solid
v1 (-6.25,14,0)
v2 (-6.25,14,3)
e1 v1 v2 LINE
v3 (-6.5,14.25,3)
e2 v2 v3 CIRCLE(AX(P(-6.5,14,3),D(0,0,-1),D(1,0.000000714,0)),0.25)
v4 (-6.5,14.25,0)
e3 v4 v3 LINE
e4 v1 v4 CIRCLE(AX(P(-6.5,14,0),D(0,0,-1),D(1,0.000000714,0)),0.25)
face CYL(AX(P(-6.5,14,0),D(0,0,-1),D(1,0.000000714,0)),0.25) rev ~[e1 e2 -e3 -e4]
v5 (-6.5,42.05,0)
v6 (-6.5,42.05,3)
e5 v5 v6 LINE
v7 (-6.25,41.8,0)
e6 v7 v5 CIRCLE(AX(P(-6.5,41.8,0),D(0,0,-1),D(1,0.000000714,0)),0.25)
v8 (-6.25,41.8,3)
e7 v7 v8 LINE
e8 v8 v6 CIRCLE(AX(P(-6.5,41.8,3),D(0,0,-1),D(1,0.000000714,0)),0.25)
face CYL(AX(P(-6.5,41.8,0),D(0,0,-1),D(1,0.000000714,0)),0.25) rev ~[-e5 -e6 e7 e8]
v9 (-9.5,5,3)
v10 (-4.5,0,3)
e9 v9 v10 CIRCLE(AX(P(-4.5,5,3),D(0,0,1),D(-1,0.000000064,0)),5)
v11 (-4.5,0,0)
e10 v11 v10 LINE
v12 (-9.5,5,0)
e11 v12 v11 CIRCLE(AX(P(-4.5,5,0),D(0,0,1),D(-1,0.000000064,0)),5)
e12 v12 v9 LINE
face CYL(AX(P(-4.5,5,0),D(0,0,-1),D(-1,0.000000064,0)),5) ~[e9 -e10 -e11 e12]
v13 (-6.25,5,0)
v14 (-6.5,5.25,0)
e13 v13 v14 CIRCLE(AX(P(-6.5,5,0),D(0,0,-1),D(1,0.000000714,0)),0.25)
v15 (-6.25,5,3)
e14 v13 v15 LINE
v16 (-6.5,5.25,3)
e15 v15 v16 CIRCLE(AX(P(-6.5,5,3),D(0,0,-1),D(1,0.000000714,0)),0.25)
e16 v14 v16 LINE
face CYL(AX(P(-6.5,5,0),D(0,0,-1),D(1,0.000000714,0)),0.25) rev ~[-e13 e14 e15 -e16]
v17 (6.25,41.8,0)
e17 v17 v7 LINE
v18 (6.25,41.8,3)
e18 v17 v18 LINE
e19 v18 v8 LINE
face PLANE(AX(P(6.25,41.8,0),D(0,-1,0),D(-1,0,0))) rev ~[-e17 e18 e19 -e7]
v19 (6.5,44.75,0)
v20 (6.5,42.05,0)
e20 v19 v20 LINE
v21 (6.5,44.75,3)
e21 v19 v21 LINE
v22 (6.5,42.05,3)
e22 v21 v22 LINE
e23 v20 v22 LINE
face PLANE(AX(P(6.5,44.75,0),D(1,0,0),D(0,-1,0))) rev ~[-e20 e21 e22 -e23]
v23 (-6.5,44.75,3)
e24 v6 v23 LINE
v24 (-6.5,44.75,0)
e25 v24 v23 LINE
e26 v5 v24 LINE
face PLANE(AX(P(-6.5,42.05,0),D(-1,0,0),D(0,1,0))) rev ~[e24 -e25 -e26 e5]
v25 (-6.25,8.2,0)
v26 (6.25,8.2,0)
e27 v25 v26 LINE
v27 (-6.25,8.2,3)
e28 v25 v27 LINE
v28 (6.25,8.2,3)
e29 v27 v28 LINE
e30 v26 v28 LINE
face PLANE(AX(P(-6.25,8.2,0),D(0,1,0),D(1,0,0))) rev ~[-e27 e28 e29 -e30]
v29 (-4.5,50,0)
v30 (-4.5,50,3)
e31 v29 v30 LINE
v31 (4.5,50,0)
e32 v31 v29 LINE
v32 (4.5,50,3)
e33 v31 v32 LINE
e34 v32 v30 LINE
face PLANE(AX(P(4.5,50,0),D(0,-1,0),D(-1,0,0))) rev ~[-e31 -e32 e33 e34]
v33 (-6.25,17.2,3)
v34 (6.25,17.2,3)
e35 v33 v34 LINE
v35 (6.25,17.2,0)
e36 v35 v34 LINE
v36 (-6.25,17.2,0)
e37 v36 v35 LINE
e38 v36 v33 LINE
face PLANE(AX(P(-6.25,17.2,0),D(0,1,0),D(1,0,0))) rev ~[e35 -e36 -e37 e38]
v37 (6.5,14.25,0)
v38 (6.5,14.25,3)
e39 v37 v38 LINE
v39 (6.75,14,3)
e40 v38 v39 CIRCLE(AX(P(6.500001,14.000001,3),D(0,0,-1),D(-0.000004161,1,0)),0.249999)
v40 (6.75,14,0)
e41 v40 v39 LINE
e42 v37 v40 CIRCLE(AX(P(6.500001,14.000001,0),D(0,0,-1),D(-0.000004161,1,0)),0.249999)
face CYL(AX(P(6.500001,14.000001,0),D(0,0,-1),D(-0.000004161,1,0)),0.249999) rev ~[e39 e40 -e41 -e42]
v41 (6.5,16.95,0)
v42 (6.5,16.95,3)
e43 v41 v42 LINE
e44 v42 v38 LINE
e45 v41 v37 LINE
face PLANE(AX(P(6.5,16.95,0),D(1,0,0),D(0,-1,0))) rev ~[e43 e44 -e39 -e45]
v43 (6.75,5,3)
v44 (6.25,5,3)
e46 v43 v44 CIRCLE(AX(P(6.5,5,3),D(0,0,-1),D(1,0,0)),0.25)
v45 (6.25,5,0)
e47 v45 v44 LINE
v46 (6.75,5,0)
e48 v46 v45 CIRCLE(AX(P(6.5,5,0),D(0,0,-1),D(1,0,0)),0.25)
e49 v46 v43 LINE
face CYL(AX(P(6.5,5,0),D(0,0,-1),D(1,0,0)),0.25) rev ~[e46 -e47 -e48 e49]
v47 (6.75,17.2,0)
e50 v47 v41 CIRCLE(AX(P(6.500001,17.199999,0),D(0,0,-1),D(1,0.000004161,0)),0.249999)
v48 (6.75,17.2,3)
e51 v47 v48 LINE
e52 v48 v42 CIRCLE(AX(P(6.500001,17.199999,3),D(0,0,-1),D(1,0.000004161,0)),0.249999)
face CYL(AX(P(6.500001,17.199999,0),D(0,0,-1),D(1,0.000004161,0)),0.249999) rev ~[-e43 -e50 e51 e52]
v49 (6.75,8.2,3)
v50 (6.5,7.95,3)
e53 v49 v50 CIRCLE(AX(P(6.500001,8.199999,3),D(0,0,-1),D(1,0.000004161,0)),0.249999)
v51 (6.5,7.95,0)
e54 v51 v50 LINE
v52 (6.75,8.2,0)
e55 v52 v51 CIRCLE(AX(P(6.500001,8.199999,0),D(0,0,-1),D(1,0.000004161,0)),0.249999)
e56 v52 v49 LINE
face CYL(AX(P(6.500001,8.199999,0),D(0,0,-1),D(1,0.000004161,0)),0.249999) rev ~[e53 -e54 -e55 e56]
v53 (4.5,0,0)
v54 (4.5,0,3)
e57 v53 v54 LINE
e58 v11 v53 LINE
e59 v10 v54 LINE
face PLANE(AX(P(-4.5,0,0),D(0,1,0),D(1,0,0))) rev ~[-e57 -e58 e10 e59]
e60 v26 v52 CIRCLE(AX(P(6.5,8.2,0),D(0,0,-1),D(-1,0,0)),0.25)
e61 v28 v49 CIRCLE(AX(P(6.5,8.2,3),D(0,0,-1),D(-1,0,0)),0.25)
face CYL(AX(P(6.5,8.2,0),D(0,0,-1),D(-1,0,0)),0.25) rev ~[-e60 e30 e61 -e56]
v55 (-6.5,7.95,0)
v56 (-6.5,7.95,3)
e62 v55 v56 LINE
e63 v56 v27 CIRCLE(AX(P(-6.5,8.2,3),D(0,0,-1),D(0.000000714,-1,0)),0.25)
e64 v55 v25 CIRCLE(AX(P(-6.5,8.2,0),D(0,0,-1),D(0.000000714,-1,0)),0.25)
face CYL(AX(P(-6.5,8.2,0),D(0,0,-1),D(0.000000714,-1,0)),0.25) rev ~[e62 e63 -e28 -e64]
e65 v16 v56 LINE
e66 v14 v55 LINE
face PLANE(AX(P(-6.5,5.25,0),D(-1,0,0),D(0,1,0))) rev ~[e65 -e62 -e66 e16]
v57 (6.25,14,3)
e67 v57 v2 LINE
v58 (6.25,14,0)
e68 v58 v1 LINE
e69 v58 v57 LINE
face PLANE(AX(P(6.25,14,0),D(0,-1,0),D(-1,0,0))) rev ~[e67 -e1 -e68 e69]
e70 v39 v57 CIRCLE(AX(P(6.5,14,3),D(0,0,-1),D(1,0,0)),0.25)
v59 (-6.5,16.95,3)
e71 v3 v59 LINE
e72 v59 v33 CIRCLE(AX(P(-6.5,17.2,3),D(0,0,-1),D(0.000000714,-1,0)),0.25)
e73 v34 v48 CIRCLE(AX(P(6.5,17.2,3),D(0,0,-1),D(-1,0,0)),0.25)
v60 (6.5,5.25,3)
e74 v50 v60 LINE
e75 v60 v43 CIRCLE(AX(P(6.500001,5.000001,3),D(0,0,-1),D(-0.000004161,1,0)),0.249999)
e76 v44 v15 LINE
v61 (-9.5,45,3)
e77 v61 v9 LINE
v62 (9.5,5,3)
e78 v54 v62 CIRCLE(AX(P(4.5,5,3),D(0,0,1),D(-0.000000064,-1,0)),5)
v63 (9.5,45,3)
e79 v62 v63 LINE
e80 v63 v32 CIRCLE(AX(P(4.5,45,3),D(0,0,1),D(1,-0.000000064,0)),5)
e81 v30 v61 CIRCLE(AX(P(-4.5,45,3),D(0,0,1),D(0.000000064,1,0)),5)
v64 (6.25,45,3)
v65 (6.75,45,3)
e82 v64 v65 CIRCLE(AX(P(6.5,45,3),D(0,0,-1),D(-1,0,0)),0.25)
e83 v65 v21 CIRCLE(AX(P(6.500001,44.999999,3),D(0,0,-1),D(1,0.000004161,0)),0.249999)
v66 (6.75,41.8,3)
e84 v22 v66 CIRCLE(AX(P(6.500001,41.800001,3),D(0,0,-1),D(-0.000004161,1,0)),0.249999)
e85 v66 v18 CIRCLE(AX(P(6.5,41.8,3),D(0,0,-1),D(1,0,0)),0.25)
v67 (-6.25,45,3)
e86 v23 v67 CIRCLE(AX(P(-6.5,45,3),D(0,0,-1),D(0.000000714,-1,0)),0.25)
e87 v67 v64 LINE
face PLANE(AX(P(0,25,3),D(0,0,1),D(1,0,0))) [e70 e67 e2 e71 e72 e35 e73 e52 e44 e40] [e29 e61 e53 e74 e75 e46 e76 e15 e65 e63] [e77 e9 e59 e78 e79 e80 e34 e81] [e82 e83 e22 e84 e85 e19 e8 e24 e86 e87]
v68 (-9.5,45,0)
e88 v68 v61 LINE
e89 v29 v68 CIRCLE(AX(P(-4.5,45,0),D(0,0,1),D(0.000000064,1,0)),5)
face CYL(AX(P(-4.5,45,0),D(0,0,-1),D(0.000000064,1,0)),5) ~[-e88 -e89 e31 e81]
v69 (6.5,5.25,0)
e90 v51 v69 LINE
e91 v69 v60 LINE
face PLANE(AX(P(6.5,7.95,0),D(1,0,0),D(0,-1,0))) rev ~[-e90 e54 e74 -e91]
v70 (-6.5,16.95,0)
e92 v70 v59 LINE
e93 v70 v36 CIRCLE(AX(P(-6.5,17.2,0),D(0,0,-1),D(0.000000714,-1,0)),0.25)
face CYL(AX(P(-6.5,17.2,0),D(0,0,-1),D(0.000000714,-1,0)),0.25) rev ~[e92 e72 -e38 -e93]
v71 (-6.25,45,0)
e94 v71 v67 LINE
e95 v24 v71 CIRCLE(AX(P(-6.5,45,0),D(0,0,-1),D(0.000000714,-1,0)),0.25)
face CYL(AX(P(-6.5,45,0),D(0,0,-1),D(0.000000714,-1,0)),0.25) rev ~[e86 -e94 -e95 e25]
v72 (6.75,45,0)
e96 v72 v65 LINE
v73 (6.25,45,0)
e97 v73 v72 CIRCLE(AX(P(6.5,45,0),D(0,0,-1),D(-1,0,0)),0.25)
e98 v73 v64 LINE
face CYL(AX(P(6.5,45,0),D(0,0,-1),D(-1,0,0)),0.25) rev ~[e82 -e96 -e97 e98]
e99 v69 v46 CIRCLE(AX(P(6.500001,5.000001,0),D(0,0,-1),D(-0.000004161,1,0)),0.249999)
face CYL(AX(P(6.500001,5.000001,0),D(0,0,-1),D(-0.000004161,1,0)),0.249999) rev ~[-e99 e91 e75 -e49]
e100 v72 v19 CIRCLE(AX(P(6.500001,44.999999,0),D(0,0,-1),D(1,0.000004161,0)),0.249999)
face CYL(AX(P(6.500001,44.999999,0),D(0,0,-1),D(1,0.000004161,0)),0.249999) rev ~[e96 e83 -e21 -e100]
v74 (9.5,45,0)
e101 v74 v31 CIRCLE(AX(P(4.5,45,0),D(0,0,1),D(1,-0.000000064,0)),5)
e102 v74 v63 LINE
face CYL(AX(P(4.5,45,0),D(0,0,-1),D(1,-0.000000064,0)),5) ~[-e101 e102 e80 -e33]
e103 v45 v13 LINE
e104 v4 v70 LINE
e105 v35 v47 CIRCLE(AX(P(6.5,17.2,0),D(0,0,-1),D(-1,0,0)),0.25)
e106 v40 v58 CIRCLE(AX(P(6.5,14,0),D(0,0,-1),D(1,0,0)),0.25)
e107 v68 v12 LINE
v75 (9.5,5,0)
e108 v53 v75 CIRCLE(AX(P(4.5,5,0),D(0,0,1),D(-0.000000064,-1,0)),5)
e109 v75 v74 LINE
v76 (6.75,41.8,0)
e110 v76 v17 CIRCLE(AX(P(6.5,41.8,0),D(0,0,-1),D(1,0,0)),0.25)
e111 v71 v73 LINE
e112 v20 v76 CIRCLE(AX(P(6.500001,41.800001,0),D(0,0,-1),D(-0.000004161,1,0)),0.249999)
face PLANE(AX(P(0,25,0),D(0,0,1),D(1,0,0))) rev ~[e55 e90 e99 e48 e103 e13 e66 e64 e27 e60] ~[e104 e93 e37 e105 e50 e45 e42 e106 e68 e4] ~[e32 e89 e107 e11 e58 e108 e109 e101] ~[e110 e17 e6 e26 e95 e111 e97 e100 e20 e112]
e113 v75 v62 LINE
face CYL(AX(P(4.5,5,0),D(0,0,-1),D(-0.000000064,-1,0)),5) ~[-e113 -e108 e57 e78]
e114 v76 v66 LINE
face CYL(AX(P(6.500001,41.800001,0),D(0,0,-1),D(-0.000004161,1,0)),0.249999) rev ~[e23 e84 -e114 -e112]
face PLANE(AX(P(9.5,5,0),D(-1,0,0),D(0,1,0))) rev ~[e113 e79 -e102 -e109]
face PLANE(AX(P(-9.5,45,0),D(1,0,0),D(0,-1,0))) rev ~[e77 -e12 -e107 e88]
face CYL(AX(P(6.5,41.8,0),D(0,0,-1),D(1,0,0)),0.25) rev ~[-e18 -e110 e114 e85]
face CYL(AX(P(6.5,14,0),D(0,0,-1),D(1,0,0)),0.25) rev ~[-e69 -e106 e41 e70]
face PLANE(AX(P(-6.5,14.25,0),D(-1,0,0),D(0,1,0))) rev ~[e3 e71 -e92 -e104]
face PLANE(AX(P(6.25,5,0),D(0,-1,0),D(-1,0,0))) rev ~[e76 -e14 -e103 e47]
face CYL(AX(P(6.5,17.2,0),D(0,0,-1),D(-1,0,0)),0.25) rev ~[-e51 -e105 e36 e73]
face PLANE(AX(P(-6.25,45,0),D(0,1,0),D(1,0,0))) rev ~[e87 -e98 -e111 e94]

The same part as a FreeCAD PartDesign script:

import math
import FreeCAD as App
import Part
import Sketcher

V = App.Vector

doc = App.newDocument("Part")
body = doc.addObject("PartDesign::Body", "Body")

# Sketch on XY plane
sketch1 = body.newObject("Sketcher::SketchObject", "Sketch")
sketch1.AttachmentSupport = (doc.getObject("XY_Plane"), [""])
sketch1.MapMode = "FlatFace"
sketch1.addGeometry(Part.LineSegment(V(4.5, 50, 0), V(-4.5, 50, 0)), False)
sketch1.addGeometry(Part.ArcOfCircle(Part.Circle(V(-4.5, 45, 0), V(0, 0, 1), 5), math.radians(90), math.radians(180)), False)
sketch1.addGeometry(Part.LineSegment(V(-9.5, 45, 0), V(-9.5, 5, 0)), False)
sketch1.addGeometry(Part.ArcOfCircle(Part.Circle(V(-4.5, 5, 0), V(0, 0, 1), 5), math.radians(180), math.radians(270)), False)
sketch1.addGeometry(Part.LineSegment(V(-4.5, 0, 0), V(4.5, 0, 0)), False)
sketch1.addGeometry(Part.ArcOfCircle(Part.Circle(V(4.5, 5, 0), V(0, 0, 1), 5), math.radians(-90), math.radians(0)), False)
sketch1.addGeometry(Part.LineSegment(V(9.5, 5, 0), V(9.5, 45, 0)), False)
sketch1.addGeometry(Part.ArcOfCircle(Part.Circle(V(4.5, 45, 0), V(0, 0, 1), 5), math.radians(0), math.radians(90)), False)
sketch1.addGeometry(Part.LineSegment(V(-6.5, 5.25, 0), V(-6.5, 7.95, 0)), False)
sketch1.addGeometry(Part.ArcOfCircle(Part.Circle(V(-6.5, 8.2, 0), V(0, 0, 1), 0.25), math.radians(0), math.radians(270)), False)
sketch1.addGeometry(Part.LineSegment(V(-6.25, 8.2, 0), V(6.25, 8.2, 0)), False)
sketch1.addGeometry(Part.ArcOfCircle(Part.Circle(V(6.5, 8.2, 0), V(0, 0, 1), 0.25), math.radians(0), math.radians(180)), False)
sketch1.addGeometry(Part.ArcOfCircle(Part.Circle(V(6.5, 8.2, 0), V(0, 0, 1), 0.25), math.radians(-90), math.radians(0)), False)
sketch1.addGeometry(Part.LineSegment(V(6.5, 7.95, 0), V(6.5, 5.25, 0)), False)
sketch1.addGeometry(Part.ArcOfCircle(Part.Circle(V(6.5, 5, 0), V(0, 0, 1), 0.25), math.radians(0), math.radians(90)), False)
sketch1.addGeometry(Part.ArcOfCircle(Part.Circle(V(6.5, 5, 0), V(0, 0, 1), 0.25), math.radians(180), math.radians(360)), False)
sketch1.addGeometry(Part.LineSegment(V(6.25, 5, 0), V(-6.25, 5, 0)), False)
sketch1.addGeometry(Part.ArcOfCircle(Part.Circle(V(-6.5, 5, 0), V(0, 0, 1), 0.25), math.radians(90), math.radians(360)), False)
sketch1.addGeometry(Part.LineSegment(V(-6.5, 14.25, 0), V(-6.5, 16.95, 0)), False)
sketch1.addGeometry(Part.ArcOfCircle(Part.Circle(V(-6.5, 17.2, 0), V(0, 0, 1), 0.25), math.radians(0), math.radians(270)), False)
sketch1.addGeometry(Part.LineSegment(V(-6.25, 17.2, 0), V(6.25, 17.2, 0)), False)
sketch1.addGeometry(Part.ArcOfCircle(Part.Circle(V(6.5, 17.2, 0), V(0, 0, 1), 0.25), math.radians(0), math.radians(180)), False)
sketch1.addGeometry(Part.ArcOfCircle(Part.Circle(V(6.5, 17.2, 0), V(0, 0, 1), 0.25), math.radians(-90), math.radians(0)), False)
sketch1.addGeometry(Part.LineSegment(V(6.5, 16.95, 0), V(6.5, 14.25, 0)), False)
sketch1.addGeometry(Part.ArcOfCircle(Part.Circle(V(6.5, 14, 0), V(0, 0, 1), 0.25), math.radians(0), math.radians(90)), False)
sketch1.addGeometry(Part.ArcOfCircle(Part.Circle(V(6.5, 14, 0), V(0, 0, 1), 0.25), math.radians(180), math.radians(360)), False)
sketch1.addGeometry(Part.LineSegment(V(6.25, 14, 0), V(-6.25, 14, 0)), False)
sketch1.addGeometry(Part.ArcOfCircle(Part.Circle(V(-6.5, 14, 0), V(0, 0, 1), 0.25), math.radians(90), math.radians(360)), False)
sketch1.addGeometry(Part.LineSegment(V(-6.5, 42.05, 0), V(-6.5, 44.75, 0)), False)
sketch1.addGeometry(Part.ArcOfCircle(Part.Circle(V(-6.5, 45, 0), V(0, 0, 1), 0.25), math.radians(0), math.radians(270)), False)
sketch1.addGeometry(Part.LineSegment(V(-6.25, 45, 0), V(6.25, 45, 0)), False)
sketch1.addGeometry(Part.ArcOfCircle(Part.Circle(V(6.5, 45, 0), V(0, 0, 1), 0.25), math.radians(0), math.radians(180)), False)
sketch1.addGeometry(Part.ArcOfCircle(Part.Circle(V(6.5, 45, 0), V(0, 0, 1), 0.25), math.radians(-90), math.radians(0)), False)
sketch1.addGeometry(Part.LineSegment(V(6.5, 44.75, 0), V(6.5, 42.05, 0)), False)
sketch1.addGeometry(Part.ArcOfCircle(Part.Circle(V(6.5, 41.8, 0), V(0, 0, 1), 0.25), math.radians(0), math.radians(90)), False)
sketch1.addGeometry(Part.ArcOfCircle(Part.Circle(V(6.5, 41.8, 0), V(0, 0, 1), 0.25), math.radians(180), math.radians(360)), False)
sketch1.addGeometry(Part.LineSegment(V(6.25, 41.8, 0), V(-6.25, 41.8, 0)), False)
sketch1.addGeometry(Part.ArcOfCircle(Part.Circle(V(-6.5, 41.8, 0), V(0, 0, 1), 0.25), math.radians(90), math.radians(360)), False)
sketch1.addConstraint(Sketcher.Constraint("Tangent", 0, 2, 1, 1))
sketch1.addConstraint(Sketcher.Constraint("Tangent", 1, 2, 2, 1))
sketch1.addConstraint(Sketcher.Constraint("Tangent", 2, 2, 3, 1))
sketch1.addConstraint(Sketcher.Constraint("Tangent", 3, 2, 4, 1))
sketch1.addConstraint(Sketcher.Constraint("Tangent", 4, 2, 5, 1))
sketch1.addConstraint(Sketcher.Constraint("Tangent", 5, 2, 6, 1))
sketch1.addConstraint(Sketcher.Constraint("Tangent", 6, 2, 7, 1))
sketch1.addConstraint(Sketcher.Constraint("Tangent", 7, 2, 0, 1))
sketch1.addConstraint(Sketcher.Constraint("Coincident", 8, 2, 9, 2))
sketch1.addConstraint(Sketcher.Constraint("Coincident", 9, 1, 10, 1))
sketch1.addConstraint(Sketcher.Constraint("Coincident", 10, 2, 11, 2))
sketch1.addConstraint(Sketcher.Constraint("Coincident", 11, 1, 12, 2))
sketch1.addConstraint(Sketcher.Constraint("Coincident", 12, 1, 13, 1))
sketch1.addConstraint(Sketcher.Constraint("Coincident", 13, 2, 14, 2))
sketch1.addConstraint(Sketcher.Constraint("Coincident", 14, 1, 15, 2))
sketch1.addConstraint(Sketcher.Constraint("Coincident", 15, 1, 16, 1))
sketch1.addConstraint(Sketcher.Constraint("Coincident", 16, 2, 17, 2))
sketch1.addConstraint(Sketcher.Constraint("Coincident", 17, 1, 8, 1))
sketch1.addConstraint(Sketcher.Constraint("Coincident", 18, 2, 19, 2))
sketch1.addConstraint(Sketcher.Constraint("Coincident", 19, 1, 20, 1))
sketch1.addConstraint(Sketcher.Constraint("Coincident", 20, 2, 21, 2))
sketch1.addConstraint(Sketcher.Constraint("Coincident", 21, 1, 22, 2))
sketch1.addConstraint(Sketcher.Constraint("Coincident", 22, 1, 23, 1))
sketch1.addConstraint(Sketcher.Constraint("Coincident", 23, 2, 24, 2))
sketch1.addConstraint(Sketcher.Constraint("Coincident", 24, 1, 25, 2))
sketch1.addConstraint(Sketcher.Constraint("Coincident", 25, 1, 26, 1))
sketch1.addConstraint(Sketcher.Constraint("Coincident", 26, 2, 27, 2))
sketch1.addConstraint(Sketcher.Constraint("Coincident", 27, 1, 18, 1))
sketch1.addConstraint(Sketcher.Constraint("Coincident", 28, 2, 29, 2))
sketch1.addConstraint(Sketcher.Constraint("Coincident", 29, 1, 30, 1))
sketch1.addConstraint(Sketcher.Constraint("Coincident", 30, 2, 31, 2))
sketch1.addConstraint(Sketcher.Constraint("Coincident", 31, 1, 32, 2))
sketch1.addConstraint(Sketcher.Constraint("Coincident", 32, 1, 33, 1))
sketch1.addConstraint(Sketcher.Constraint("Coincident", 33, 2, 34, 2))
sketch1.addConstraint(Sketcher.Constraint("Coincident", 34, 1, 35, 2))
sketch1.addConstraint(Sketcher.Constraint("Coincident", 35, 1, 36, 1))
sketch1.addConstraint(Sketcher.Constraint("Coincident", 36, 2, 37, 2))
sketch1.addConstraint(Sketcher.Constraint("Coincident", 37, 1, 28, 1))
sketch1.addConstraint(Sketcher.Constraint("Horizontal", 0))
sketch1.addConstraint(Sketcher.Constraint("Vertical", 2))
sketch1.addConstraint(Sketcher.Constraint("Horizontal", 4))
sketch1.addConstraint(Sketcher.Constraint("Vertical", 6))
sketch1.addConstraint(Sketcher.Constraint("Vertical", 8))
sketch1.addConstraint(Sketcher.Constraint("Horizontal", 10))
sketch1.addConstraint(Sketcher.Constraint("Vertical", 13))
sketch1.addConstraint(Sketcher.Constraint("Horizontal", 16))
sketch1.addConstraint(Sketcher.Constraint("Vertical", 18))
sketch1.addConstraint(Sketcher.Constraint("Horizontal", 20))
sketch1.addConstraint(Sketcher.Constraint("Vertical", 23))
sketch1.addConstraint(Sketcher.Constraint("Horizontal", 26))
sketch1.addConstraint(Sketcher.Constraint("Vertical", 28))
sketch1.addConstraint(Sketcher.Constraint("Horizontal", 30))
sketch1.addConstraint(Sketcher.Constraint("Vertical", 33))
sketch1.addConstraint(Sketcher.Constraint("Horizontal", 36))
sketch1.addConstraint(Sketcher.Constraint("Coincident", 12, 3, 11, 3))
sketch1.addConstraint(Sketcher.Constraint("Coincident", 15, 3, 14, 3))
sketch1.addConstraint(Sketcher.Constraint("Coincident", 22, 3, 21, 3))
sketch1.addConstraint(Sketcher.Constraint("Coincident", 25, 3, 24, 3))
sketch1.addConstraint(Sketcher.Constraint("Coincident", 32, 3, 31, 3))
sketch1.addConstraint(Sketcher.Constraint("Coincident", 35, 3, 34, 3))
sketch1.addConstraint(Sketcher.Constraint("Equal", 1, 3))
sketch1.addConstraint(Sketcher.Constraint("Equal", 3, 5))
sketch1.addConstraint(Sketcher.Constraint("Equal", 5, 7))
sketch1.addConstraint(Sketcher.Constraint("Equal", 9, 11))
sketch1.addConstraint(Sketcher.Constraint("Equal", 12, 14))
sketch1.addConstraint(Sketcher.Constraint("Equal", 15, 17))
sketch1.addConstraint(Sketcher.Constraint("Equal", 17, 19))
sketch1.addConstraint(Sketcher.Constraint("Equal", 19, 21))
sketch1.addConstraint(Sketcher.Constraint("Equal", 22, 24))
sketch1.addConstraint(Sketcher.Constraint("Equal", 25, 27))
sketch1.addConstraint(Sketcher.Constraint("Equal", 27, 29))
sketch1.addConstraint(Sketcher.Constraint("Equal", 29, 31))
sketch1.addConstraint(Sketcher.Constraint("Equal", 32, 34))
sketch1.addConstraint(Sketcher.Constraint("Equal", 35, 37))
sketch1.addConstraint(Sketcher.Constraint("Symmetric", 3, 2, 4, 2, -1, 1))
sketch1.addConstraint(Sketcher.Constraint("Symmetric", 9, 3, 11, 3, -2))
sketch1.addConstraint(Sketcher.Constraint("Symmetric", 14, 3, 17, 3, -2))
sketch1.addConstraint(Sketcher.Constraint("Symmetric", 19, 3, 21, 3, -2))
sketch1.addConstraint(Sketcher.Constraint("Symmetric", 24, 3, 27, 3, -2))
sketch1.addConstraint(Sketcher.Constraint("Symmetric", 29, 3, 31, 3, -2))
sketch1.addConstraint(Sketcher.Constraint("Symmetric", 34, 3, 37, 3, -2))
sketch1.addConstraint(Sketcher.Constraint("Horizontal", 5, 3, 14, 3))
sketch1.addConstraint(Sketcher.Constraint("Horizontal", 7, 3, 29, 3))
sketch1.addConstraint(Sketcher.Constraint("Horizontal", 12, 3, 9, 1))
sketch1.addConstraint(Sketcher.Constraint("Horizontal", 10, 2, 11, 1))
sketch1.addConstraint(Sketcher.Constraint("Horizontal", 5, 2, 14, 1))
sketch1.addConstraint(Sketcher.Constraint("Horizontal", 14, 1, 15, 1))
sketch1.addConstraint(Sketcher.Constraint("Horizontal", 22, 3, 19, 1))
sketch1.addConstraint(Sketcher.Constraint("Horizontal", 20, 2, 21, 1))
sketch1.addConstraint(Sketcher.Constraint("Horizontal", 27, 3, 24, 1))
sketch1.addConstraint(Sketcher.Constraint("Horizontal", 24, 1, 25, 1))
sketch1.addConstraint(Sketcher.Constraint("Horizontal", 6, 2, 29, 1))
sketch1.addConstraint(Sketcher.Constraint("Horizontal", 30, 2, 31, 1))
sketch1.addConstraint(Sketcher.Constraint("Horizontal", 37, 3, 34, 1))
sketch1.addConstraint(Sketcher.Constraint("Horizontal", 34, 1, 35, 1))
sketch1.addConstraint(Sketcher.Constraint("Vertical", 12, 3, 14, 3))
sketch1.addConstraint(Sketcher.Constraint("Vertical", 17, 3, 19, 3))
sketch1.addConstraint(Sketcher.Constraint("Vertical", 22, 3, 24, 3))
sketch1.addConstraint(Sketcher.Constraint("Vertical", 27, 3, 29, 3))
sketch1.addConstraint(Sketcher.Constraint("Vertical", 32, 3, 34, 3))
sketch1.addConstraint(Sketcher.Constraint("Vertical", 37, 3, 8, 2))
sketch1.addConstraint(Sketcher.Constraint("Vertical", 35, 3, 12, 1))
sketch1.addConstraint(Sketcher.Constraint("Vertical", 17, 1, 18, 2))
sketch1.addConstraint(Sketcher.Constraint("Vertical", 13, 2, 22, 1))
sketch1.addConstraint(Sketcher.Constraint("Vertical", 27, 1, 28, 2))
sketch1.addConstraint(Sketcher.Constraint("Vertical", 23, 2, 32, 1))
sketch1.addConstraint(Sketcher.Constraint("Equal", 13, 18))
sketch1.addConstraint(Sketcher.Constraint("Equal", 23, 28))
sketch1.addConstraint(Sketcher.Constraint("Radius", 1, 5.0))
sketch1.addConstraint(Sketcher.Constraint("DistanceX", 0, 2, 0, 1, 9.0))
sketch1.addConstraint(Sketcher.Constraint("DistanceY", 2, 2, 2, 1, 40.0))
sketch1.addConstraint(Sketcher.Constraint("Radius", 9, 0.25))
sketch1.addConstraint(Sketcher.Constraint("DistanceX", 10, 1, 10, 2, 12.5))
sketch1.addConstraint(Sketcher.Constraint("DistanceY", 8, 1, 8, 2, 2.7))
sketch1.addConstraint(Sketcher.Constraint("DistanceY", -1, 1, 24, 3, 14.000001))
pad1 = body.newObject("PartDesign::Pad", "Pad")
pad1.Profile = sketch1
pad1.Length = 3

doc.recompute()
